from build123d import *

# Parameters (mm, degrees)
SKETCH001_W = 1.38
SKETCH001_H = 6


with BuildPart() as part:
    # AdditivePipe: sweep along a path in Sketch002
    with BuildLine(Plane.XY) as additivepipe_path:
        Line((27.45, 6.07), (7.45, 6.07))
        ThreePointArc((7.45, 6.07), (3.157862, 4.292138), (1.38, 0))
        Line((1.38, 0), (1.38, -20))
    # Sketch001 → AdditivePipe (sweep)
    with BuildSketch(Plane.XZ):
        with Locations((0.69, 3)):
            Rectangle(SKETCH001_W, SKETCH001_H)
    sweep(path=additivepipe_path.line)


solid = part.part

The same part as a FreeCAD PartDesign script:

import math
import FreeCAD as App
import Part
import Sketcher
Q = App.Units.Quantity


def add_polygon(sketch, points):
    """Adds a closed chain of lines whose ends are joined by coincident constraints."""
    first, n = sketch.GeometryCount, len(points)
    for a, b in zip(points, points[1:] + points[:1]):
        sketch.addGeometry(Part.LineSegment(App.Vector(*a, 0), App.Vector(*b, 0)), False)
    for i in range(n):
        sketch.addConstraint(Sketcher.Constraint("Coincident", first + i, 2, first + (i + 1) % n, 1))

doc = App.newDocument("Part")
body = doc.addObject("PartDesign::Body", "Body")

# Sketch on XZ plane
sketch1 = doc.addObject("Sketcher::SketchObject", "Sketch")
body.addObject(sketch1)
sketch1.AttachmentSupport = (doc.XZ_Plane, [""])
sketch1.MapMode = "FlatFace"
add_polygon(sketch1, [(0, 6), (0, 0), (1.4, 0), (1.4, 6)])  # lines 0-3
sketch1.addConstraint(Sketcher.Constraint("Vertical", 0))
sketch1.addConstraint(Sketcher.Constraint("Horizontal", 1))
sketch1.addConstraint(Sketcher.Constraint("Vertical", 2))
sketch1.addConstraint(Sketcher.Constraint("Horizontal", 3))
sketch1.addConstraint(Sketcher.Constraint("Coincident", 0, 2, -1, 1))
sketch1.addConstraint(Sketcher.Constraint("DistanceY", 0, 2, 0, 1, Q("6 mm")))
sketch1.addConstraint(Sketcher.Constraint("DistanceX", 1, 1, 1, 2, Q("1.38 mm")))

# Sketch on XY plane
sketch2 = doc.addObject("Sketcher::SketchObject", "Sketch001")
body.addObject(sketch2)
sketch2.AttachmentSupport = (doc.XY_Plane, [""])
sketch2.MapMode = "FlatFace"
sketch2.addGeometry(Part.LineSegment(App.Vector(27, 6, 0), App.Vector(7, 6, 0)), False)
sketch2.addGeometry(Part.ArcOfCircle(Part.Circle(App.Vector(7, 0, 0), App.Vector(0, 0, 1), 6), math.radians(90), math.radians(180)), False)
sketch2.addGeometry(Part.LineSegment(App.Vector(1, 0, 0), App.Vector(1, -20, 0)), False)
sketch2.addConstraint(Sketcher.Constraint("Tangent", 0, 2, 1, 1))
sketch2.addConstraint(Sketcher.Constraint("Tangent", 1, 2, 2, 1))
sketch2.addConstraint(Sketcher.Constraint("Horizontal", 0))
sketch2.addConstraint(Sketcher.Constraint("Vertical", 2))
sketch2.addConstraint(Sketcher.Constraint("PointOnObject", 1, 3, -1))
sketch2.addConstraint(Sketcher.Constraint("Equal", 0, 2))
sketch2.addConstraint(Sketcher.Constraint("DistanceX", 0, 2, 0, 1, Q("20 mm")))
sketch2.addConstraint(Sketcher.Constraint("Radius", 1, Q("6.070001 mm")))
sketch2.addConstraint(Sketcher.Constraint("DistanceX", -1, 1, 1, 3, Q("7.450001 mm")))
doc.recompute()

additivepipe = doc.addObject("PartDesign::AdditivePipe", "AdditivePipe")
body.addObject(additivepipe)
additivepipe.Profile = sketch1
additivepipe.Spine = (sketch2, ["Edge1", "Edge2", "Edge3"])

doc.recompute()
